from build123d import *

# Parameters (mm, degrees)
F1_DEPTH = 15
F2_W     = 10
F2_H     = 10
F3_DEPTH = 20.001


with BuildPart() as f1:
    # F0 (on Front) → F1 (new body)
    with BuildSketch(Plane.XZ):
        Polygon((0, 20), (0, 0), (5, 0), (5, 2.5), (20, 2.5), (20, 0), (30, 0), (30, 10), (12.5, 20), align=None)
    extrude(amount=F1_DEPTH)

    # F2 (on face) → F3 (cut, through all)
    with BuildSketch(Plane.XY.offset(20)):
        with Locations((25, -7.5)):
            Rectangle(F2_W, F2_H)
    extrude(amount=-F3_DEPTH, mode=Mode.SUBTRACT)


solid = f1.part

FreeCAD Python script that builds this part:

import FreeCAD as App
import Part
import Sketcher
from FreeCAD import Vector
Q = App.Units.Quantity

doc = App.newDocument("Part")
body = doc.addObject("PartDesign::Body", "Body")

# Sketch on XZ plane
sketch1 = body.newObject("Sketcher::SketchObject", "Sketch")
sketch1.AttachmentSupport = (doc.getObject("XZ_Plane"), [""])
sketch1.MapMode = "FlatFace"
sketch1.addGeometry([
    Part.LineSegment(Vector(0, 20, 0), Vector(0, 0, 0)),  # 0
    Part.LineSegment(Vector(0, 0, 0), Vector(5, 0, 0)),  # 1
    Part.LineSegment(Vector(5, 0, 0), Vector(5, 2.5, 0)),  # 2
    Part.LineSegment(Vector(5, 2.5, 0), Vector(20, 2.5, 0)),  # 3
    Part.LineSegment(Vector(20, 2.5, 0), Vector(20, 0, 0)),  # 4
    Part.LineSegment(Vector(20, 0, 0), Vector(30, 0, 0)),  # 5
    Part.LineSegment(Vector(30, 0, 0), Vector(30, 10, 0)),  # 6
    Part.LineSegment(Vector(30, 10, 0), Vector(12.5, 20, 0)),  # 7
    Part.LineSegment(Vector(12.5, 20, 0), Vector(0, 20, 0)),  # 8
], False)
sketch1.addConstraint([
    Sketcher.Constraint("Coincident", 0, 2, 1, 1),
    Sketcher.Constraint("Coincident", 1, 2, 2, 1),
    Sketcher.Constraint("Coincident", 2, 2, 3, 1),
    Sketcher.Constraint("Coincident", 3, 2, 4, 1),
    Sketcher.Constraint("Coincident", 4, 2, 5, 1),
    Sketcher.Constraint("Coincident", 5, 2, 6, 1),
    Sketcher.Constraint("Coincident", 6, 2, 7, 1),
    Sketcher.Constraint("Coincident", 7, 2, 8, 1),
    Sketcher.Constraint("Coincident", 8, 2, 0, 1),
    Sketcher.Constraint("Vertical", 0),
    Sketcher.Constraint("Horizontal", 1),
    Sketcher.Constraint("Vertical", 2),
    Sketcher.Constraint("Horizontal", 3),
    Sketcher.Constraint("Vertical", 4),
    Sketcher.Constraint("Horizontal", 5),
    Sketcher.Constraint("Vertical", 6),
    Sketcher.Constraint("Horizontal", 8),
    Sketcher.Constraint("Coincident", 0, 2, -1, 1),
    Sketcher.Constraint("PointOnObject", 4, 2, -1),
    Sketcher.Constraint("Equal", 5, 6),
    Sketcher.Constraint("DistanceX", 1, 1, 1, 2, Q("5 mm")),
    Sketcher.Constraint("DistanceX", 3, 1, 3, 2, Q("15 mm")),
    Sketcher.Constraint("DistanceX", 5, 1, 5, 2, Q("10 mm")),
    Sketcher.Constraint("DistanceY", 0, 2, 0, 1, Q("20 mm")),
    Sketcher.Constraint("DistanceX", 8, 2, 8, 1, Q("12.5 mm")),
    Sketcher.Constraint("DistanceY", 2, 1, 2, 2, Q("2.5 mm")),
])
pad1 = body.newObject("PartDesign::Pad", "Pad")
pad1.Profile = sketch1
pad1.Length = 15

# Sketch on XY plane
sketch2 = body.newObject("Sketcher::SketchObject", "Sketch001")
sketch2.AttachmentSupport = (doc.getObject("XY_Plane"), [""])
sketch2.MapMode = "FlatFace"
sketch2.AttachmentOffset = App.Placement(Vector(0, 0, 20), App.Rotation())
sketch2.addGeometry([
    Part.LineSegment(Vector(20, -2.5, 0), Vector(20, -12.5, 0)),
    Part.LineSegment(Vector(20, -12.5, 0), Vector(30, -12.5, 0)),
    Part.LineSegment(Vector(30, -12.5, 0), Vector(30, -2.5, 0)),
    Part.LineSegment(Vector(30, -2.5, 0), Vector(20, -2.5, 0)),
], False)
sketch2.addConstraint([
    Sketcher.Constraint("Coincident", 0, 2, 1, 1),
    Sketcher.Constraint("Coincident", 1, 2, 2, 1),
    Sketcher.Constraint("Coincident", 2, 2, 3, 1),
    Sketcher.Constraint("Coincident", 3, 2, 0, 1),
    Sketcher.Constraint("Vertical", 0),
    Sketcher.Constraint("Horizontal", 1),
    Sketcher.Constraint("Vertical", 2),
    Sketcher.Constraint("Horizontal", 3),
    Sketcher.Constraint("Equal", 3, 0),
    Sketcher.Constraint("DistanceX", 1, 1, 1, 2, Q("10 mm")),
    Sketcher.Constraint("DistanceX", -1, 1, 0, 2, Q("20 mm")),
    Sketcher.Constraint("DistanceY", 0, 2, -1, 1, Q("12.5 mm")),
])
pocket1 = body.newObject("PartDesign::Pocket", "Pocket")
pocket1.Profile = sketch2
pocket1.Type = "ThroughAll"

doc.recompute()
